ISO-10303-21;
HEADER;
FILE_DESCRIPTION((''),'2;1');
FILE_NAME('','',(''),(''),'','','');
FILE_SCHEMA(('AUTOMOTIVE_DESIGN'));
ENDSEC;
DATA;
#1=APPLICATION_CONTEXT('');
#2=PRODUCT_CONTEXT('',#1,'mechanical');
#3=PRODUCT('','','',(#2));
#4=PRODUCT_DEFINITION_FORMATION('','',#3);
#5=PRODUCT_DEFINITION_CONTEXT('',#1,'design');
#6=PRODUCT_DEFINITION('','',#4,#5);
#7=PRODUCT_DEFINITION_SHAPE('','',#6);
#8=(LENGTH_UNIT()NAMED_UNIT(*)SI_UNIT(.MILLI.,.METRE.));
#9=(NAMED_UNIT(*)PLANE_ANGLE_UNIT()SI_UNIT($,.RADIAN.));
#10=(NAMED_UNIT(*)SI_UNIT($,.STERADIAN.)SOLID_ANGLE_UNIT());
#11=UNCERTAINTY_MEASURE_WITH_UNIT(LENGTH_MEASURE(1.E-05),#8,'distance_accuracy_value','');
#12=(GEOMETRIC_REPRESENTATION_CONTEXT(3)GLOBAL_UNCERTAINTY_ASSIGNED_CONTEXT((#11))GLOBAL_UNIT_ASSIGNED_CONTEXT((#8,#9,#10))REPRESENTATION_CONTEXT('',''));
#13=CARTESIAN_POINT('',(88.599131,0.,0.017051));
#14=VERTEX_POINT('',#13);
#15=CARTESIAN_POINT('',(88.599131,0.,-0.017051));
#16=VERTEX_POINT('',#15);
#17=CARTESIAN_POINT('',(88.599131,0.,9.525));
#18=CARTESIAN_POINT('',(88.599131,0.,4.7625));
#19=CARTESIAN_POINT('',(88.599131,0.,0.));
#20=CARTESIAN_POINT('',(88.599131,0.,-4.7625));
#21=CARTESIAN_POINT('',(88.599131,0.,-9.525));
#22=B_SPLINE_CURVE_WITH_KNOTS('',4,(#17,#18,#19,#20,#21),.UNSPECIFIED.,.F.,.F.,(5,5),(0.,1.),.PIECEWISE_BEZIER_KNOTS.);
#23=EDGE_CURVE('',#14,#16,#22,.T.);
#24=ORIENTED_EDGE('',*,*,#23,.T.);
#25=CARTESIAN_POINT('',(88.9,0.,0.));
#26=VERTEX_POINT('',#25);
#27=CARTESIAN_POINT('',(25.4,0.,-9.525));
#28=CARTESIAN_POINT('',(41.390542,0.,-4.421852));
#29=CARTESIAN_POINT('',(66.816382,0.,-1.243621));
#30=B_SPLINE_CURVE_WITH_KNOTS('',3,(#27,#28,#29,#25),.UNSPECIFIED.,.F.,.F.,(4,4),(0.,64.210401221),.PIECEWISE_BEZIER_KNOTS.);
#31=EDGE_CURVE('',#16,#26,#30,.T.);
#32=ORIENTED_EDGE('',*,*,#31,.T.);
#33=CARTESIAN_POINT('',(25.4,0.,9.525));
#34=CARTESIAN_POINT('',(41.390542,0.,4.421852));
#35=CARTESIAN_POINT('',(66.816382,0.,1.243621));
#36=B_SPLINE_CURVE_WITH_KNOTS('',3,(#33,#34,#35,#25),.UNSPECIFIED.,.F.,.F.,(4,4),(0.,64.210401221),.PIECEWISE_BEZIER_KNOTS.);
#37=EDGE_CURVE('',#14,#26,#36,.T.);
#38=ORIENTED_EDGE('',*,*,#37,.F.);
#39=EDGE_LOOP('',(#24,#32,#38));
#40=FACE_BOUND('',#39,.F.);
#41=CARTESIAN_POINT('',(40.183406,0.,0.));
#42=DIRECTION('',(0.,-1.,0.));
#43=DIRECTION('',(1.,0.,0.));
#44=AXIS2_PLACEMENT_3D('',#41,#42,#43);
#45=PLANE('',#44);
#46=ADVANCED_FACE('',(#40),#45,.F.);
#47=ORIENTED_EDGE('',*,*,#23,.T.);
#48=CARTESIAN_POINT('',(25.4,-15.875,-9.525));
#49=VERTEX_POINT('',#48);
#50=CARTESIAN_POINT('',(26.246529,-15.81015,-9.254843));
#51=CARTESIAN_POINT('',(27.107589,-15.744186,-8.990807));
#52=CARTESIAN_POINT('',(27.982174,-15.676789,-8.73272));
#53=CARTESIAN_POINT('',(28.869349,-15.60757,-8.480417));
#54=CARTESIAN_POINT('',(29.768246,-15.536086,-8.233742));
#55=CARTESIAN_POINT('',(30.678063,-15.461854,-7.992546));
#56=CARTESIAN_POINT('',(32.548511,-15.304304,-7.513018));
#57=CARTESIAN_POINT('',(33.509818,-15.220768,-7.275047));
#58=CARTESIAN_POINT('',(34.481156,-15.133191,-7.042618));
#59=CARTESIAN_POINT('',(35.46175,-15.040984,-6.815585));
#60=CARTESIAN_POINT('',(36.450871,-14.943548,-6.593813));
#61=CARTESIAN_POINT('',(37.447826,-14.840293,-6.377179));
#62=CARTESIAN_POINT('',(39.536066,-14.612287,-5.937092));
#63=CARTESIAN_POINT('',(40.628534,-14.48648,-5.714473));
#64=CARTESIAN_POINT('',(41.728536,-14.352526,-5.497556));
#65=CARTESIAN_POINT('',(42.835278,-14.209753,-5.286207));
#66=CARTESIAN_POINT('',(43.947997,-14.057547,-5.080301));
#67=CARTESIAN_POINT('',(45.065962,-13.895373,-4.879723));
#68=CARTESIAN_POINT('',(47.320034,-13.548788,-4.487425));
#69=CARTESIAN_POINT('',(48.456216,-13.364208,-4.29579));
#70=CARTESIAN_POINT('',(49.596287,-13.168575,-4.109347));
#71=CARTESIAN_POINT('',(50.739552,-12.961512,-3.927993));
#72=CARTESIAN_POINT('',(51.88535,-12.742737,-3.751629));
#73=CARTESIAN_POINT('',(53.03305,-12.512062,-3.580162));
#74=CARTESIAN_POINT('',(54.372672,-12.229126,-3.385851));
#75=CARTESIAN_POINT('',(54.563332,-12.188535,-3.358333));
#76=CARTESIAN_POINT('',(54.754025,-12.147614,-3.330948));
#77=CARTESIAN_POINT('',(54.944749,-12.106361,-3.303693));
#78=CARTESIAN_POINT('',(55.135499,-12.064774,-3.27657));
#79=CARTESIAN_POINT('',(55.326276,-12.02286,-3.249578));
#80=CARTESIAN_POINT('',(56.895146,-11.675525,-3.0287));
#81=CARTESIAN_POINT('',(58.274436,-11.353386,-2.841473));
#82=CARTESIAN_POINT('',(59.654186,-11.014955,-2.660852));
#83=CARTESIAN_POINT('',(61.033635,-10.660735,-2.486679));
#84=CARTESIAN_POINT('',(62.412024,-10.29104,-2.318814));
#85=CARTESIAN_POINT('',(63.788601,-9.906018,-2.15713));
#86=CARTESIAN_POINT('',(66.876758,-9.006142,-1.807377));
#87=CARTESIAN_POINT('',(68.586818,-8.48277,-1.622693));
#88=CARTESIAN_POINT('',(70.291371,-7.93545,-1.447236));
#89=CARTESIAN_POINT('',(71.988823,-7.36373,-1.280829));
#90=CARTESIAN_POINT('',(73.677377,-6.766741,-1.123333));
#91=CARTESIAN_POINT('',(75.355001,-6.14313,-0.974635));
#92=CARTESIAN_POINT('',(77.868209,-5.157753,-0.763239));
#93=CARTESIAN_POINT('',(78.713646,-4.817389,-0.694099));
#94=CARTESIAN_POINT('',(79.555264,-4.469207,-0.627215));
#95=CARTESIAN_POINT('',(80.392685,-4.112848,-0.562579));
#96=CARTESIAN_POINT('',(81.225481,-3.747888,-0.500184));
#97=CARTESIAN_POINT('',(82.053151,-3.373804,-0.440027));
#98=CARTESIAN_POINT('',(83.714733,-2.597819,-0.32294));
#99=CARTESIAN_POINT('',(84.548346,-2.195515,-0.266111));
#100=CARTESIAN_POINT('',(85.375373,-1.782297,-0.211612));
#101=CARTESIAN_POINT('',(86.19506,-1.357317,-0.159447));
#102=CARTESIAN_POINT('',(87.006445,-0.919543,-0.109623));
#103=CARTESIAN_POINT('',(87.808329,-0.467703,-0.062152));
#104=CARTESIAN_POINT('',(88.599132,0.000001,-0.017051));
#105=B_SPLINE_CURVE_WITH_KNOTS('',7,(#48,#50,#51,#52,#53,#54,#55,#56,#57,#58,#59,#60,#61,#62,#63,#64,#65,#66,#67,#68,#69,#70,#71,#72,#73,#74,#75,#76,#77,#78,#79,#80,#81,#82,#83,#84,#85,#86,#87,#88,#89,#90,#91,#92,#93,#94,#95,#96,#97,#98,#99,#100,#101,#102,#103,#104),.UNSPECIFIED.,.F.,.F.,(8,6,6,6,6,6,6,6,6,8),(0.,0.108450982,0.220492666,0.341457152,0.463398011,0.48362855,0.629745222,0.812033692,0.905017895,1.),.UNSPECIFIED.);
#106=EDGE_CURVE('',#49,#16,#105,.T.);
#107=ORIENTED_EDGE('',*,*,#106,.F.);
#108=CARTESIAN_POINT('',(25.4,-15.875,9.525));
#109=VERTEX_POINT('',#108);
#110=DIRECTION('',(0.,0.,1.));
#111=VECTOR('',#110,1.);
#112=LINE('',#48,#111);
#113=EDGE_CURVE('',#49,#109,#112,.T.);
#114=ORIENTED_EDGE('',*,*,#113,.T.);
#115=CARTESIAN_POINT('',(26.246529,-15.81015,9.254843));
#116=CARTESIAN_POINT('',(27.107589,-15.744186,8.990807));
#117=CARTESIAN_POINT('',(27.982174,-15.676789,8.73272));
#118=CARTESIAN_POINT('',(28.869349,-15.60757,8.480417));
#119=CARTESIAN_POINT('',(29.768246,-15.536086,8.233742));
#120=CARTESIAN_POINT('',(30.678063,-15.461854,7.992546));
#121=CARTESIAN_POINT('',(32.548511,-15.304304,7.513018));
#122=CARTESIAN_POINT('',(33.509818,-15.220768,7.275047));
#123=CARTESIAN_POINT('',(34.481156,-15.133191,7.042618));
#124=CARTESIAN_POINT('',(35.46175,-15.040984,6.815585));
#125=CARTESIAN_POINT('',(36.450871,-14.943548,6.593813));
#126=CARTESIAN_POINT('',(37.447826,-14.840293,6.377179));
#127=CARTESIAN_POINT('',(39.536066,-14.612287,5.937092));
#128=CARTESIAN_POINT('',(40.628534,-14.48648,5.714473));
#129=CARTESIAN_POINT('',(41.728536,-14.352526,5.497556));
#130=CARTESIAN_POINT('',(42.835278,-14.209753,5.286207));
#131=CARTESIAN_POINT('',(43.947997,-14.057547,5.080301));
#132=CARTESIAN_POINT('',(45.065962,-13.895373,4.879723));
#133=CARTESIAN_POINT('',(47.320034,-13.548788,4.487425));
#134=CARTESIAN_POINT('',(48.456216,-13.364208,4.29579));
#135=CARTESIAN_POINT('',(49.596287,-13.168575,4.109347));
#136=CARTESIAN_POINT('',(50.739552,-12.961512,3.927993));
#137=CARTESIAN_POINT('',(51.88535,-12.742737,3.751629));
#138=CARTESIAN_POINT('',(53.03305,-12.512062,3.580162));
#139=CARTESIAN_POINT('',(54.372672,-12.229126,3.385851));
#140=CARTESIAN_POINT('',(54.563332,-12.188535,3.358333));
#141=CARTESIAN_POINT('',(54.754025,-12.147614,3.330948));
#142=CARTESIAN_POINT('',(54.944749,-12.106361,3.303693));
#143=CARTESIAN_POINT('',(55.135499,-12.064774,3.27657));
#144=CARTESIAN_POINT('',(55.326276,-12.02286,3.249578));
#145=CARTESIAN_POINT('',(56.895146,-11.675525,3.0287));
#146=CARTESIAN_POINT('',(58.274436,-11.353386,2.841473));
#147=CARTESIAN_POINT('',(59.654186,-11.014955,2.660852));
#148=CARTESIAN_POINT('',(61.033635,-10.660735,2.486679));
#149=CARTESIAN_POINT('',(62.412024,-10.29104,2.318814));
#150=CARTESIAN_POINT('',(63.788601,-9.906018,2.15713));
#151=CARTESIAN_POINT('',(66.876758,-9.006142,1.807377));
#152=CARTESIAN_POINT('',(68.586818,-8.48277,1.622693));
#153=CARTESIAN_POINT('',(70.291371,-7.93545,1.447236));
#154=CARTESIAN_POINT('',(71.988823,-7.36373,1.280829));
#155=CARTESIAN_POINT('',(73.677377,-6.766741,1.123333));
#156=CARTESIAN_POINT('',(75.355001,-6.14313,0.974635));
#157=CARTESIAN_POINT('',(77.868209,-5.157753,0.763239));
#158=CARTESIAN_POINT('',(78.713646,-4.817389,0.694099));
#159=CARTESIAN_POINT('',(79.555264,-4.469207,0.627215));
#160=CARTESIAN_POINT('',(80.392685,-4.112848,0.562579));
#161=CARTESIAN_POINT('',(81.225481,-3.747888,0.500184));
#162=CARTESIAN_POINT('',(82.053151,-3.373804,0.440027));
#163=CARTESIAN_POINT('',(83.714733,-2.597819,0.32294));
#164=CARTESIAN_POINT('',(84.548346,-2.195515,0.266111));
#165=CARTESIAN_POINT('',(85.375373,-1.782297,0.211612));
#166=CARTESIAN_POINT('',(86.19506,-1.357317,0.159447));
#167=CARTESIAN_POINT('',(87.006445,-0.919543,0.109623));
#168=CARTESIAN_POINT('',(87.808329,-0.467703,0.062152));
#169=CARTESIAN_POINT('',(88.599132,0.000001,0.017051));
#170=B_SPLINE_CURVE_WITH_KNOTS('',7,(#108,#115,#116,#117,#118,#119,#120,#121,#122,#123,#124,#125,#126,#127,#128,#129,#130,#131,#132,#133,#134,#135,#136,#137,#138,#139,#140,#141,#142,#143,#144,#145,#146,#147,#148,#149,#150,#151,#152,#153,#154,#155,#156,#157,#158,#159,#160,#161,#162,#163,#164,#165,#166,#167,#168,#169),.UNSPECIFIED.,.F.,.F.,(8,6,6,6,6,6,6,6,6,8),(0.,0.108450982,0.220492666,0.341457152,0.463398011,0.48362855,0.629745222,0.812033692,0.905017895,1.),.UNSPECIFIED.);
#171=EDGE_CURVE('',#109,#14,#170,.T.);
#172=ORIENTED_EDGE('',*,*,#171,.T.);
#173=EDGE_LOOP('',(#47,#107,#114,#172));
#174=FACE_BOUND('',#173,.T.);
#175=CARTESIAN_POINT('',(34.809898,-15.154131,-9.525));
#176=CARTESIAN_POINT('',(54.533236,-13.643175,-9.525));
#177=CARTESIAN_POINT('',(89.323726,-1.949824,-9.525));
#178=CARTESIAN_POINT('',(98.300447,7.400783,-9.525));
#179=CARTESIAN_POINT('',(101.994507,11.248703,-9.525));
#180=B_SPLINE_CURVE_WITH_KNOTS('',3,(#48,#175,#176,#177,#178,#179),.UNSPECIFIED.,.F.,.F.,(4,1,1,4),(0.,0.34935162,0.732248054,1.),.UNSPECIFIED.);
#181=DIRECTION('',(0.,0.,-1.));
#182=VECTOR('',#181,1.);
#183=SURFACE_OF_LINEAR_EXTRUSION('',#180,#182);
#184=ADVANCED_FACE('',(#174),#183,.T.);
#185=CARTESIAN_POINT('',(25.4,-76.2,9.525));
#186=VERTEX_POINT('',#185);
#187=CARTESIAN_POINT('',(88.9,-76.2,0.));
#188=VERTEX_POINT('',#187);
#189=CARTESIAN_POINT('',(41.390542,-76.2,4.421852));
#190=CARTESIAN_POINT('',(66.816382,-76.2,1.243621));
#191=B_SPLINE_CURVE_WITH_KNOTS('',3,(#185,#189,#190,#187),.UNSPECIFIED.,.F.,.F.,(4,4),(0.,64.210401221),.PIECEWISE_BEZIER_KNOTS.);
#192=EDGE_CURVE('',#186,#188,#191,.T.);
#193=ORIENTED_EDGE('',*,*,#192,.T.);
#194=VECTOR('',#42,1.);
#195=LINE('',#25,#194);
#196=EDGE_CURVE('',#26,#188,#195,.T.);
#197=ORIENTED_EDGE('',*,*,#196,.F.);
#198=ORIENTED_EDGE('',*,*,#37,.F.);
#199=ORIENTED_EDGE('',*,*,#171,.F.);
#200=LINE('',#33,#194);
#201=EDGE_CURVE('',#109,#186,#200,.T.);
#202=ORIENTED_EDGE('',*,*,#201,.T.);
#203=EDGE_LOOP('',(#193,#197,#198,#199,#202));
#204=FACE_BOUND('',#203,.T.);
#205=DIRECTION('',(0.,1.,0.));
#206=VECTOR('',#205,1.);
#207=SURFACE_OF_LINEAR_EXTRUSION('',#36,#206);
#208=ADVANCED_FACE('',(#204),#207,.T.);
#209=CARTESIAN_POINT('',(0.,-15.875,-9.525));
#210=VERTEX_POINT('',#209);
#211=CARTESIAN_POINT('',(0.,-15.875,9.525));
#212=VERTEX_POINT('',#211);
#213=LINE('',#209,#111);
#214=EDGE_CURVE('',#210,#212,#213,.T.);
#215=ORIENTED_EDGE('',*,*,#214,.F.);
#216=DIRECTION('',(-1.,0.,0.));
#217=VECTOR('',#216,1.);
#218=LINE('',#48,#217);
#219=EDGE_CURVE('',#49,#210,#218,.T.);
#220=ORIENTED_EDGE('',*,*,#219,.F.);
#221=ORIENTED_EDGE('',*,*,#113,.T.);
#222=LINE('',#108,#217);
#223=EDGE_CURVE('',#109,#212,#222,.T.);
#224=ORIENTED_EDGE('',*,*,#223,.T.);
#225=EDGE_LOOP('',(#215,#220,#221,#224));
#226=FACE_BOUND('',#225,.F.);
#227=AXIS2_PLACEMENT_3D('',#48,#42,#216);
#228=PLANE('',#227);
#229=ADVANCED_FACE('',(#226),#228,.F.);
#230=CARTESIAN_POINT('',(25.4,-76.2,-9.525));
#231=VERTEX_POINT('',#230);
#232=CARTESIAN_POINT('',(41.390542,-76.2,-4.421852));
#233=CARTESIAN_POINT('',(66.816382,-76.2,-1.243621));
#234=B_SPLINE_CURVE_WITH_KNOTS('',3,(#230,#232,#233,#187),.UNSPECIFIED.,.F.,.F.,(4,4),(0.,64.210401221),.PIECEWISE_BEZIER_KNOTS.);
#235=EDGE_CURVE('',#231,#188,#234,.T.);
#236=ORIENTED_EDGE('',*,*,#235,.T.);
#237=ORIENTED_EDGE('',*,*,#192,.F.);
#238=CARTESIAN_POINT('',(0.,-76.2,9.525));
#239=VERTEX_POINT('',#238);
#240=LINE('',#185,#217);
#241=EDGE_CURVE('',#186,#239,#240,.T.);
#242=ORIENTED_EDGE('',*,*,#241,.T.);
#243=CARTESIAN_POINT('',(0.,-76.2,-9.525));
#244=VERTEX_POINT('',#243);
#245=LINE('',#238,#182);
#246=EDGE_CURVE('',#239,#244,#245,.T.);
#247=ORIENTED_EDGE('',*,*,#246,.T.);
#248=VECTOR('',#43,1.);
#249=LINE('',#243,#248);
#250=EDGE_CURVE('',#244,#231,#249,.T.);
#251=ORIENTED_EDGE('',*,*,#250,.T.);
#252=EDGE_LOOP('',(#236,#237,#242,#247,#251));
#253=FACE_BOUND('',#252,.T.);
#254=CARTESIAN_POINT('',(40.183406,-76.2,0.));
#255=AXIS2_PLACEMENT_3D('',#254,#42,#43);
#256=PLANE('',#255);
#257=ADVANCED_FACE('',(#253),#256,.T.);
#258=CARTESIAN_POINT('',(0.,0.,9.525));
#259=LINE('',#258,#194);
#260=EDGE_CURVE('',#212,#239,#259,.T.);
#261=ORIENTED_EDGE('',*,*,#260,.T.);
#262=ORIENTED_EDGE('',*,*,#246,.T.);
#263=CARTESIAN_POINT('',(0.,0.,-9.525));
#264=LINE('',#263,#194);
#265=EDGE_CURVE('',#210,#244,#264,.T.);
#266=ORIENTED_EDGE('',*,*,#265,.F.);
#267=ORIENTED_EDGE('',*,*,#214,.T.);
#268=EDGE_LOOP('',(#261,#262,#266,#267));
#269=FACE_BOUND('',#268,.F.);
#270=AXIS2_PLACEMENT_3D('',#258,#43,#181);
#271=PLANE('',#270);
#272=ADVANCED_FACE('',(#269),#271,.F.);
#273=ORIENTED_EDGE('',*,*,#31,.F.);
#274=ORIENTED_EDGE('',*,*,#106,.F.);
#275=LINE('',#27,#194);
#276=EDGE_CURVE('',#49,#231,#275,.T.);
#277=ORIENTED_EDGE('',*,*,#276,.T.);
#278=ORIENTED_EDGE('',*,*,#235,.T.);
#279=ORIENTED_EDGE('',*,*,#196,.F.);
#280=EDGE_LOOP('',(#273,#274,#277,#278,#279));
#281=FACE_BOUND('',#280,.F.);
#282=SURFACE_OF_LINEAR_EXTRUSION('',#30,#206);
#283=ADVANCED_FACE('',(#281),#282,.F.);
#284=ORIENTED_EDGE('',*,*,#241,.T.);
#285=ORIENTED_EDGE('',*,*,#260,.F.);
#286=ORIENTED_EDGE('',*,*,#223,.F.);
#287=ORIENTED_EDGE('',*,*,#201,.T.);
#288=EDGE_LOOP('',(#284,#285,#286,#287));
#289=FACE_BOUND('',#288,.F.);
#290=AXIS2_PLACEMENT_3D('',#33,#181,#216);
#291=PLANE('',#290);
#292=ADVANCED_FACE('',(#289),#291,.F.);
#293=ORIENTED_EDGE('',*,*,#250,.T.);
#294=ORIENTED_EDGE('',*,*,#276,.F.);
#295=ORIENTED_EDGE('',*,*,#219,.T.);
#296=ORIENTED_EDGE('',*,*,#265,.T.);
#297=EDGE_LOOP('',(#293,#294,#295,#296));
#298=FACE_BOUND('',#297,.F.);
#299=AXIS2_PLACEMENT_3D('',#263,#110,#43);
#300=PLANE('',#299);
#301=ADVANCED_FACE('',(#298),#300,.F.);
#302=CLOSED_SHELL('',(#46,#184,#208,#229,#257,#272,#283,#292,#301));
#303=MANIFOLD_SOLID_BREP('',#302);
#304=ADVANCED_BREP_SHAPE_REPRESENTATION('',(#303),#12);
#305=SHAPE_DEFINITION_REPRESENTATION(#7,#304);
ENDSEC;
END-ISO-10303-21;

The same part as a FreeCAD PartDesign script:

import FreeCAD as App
import Part
import Sketcher
Q = App.Units.Quantity

doc = App.newDocument("Part")
body = doc.addObject("PartDesign::Body", "Body")

# Sketch on XZ plane
sketch1 = doc.addObject("Sketcher::SketchObject", "Sketch")
body.addObject(sketch1)
sketch1.AttachmentSupport = (doc.XZ_Plane, [""])
sketch1.MapMode = "FlatFace"
sketch1.addGeometry([
    Part.LineSegment(App.Vector(0, 9.525, 0), App.Vector(0, -9.525, 0)),  # 0
    Part.LineSegment(App.Vector(0, -9.525, 0), App.Vector(25.4, -9.525, 0)),  # 1
    Part.BSplineCurve([App.Vector(25.4, -9.525, 0), App.Vector(41.390542, -4.421852, 0), App.Vector(66.816382, -1.243621, 0), App.Vector(88.9, 0, 0)], [4, 4], [0, 64.210401221], False, 3, [1, 1, 1, 1], False),  # 2
    Part.BSplineCurve([App.Vector(25.4, 9.525, 0), App.Vector(41.390542, 4.421852, 0), App.Vector(66.816382, 1.243621, 0), App.Vector(88.9, 0, 0)], [4, 4], [0, 64.210401221], False, 3, [1, 1, 1, 1], False),  # 3
    Part.LineSegment(App.Vector(25.4, 9.525, 0), App.Vector(0, 9.525, 0)),  # 4
], False)
sketch1.addConstraint([
    Sketcher.Constraint("Block", 2),
    Sketcher.Constraint("Block", 3),
    Sketcher.Constraint("Coincident", 0, 2, 1, 1),
    Sketcher.Constraint("Coincident", 1, 2, 2, 1),
    Sketcher.Constraint("Coincident", 3, 1, 4, 1),
    Sketcher.Constraint("Coincident", 4, 2, 0, 1),
    Sketcher.Constraint("Vertical", 0),
    Sketcher.Constraint("Horizontal", 1),
    Sketcher.Constraint("Horizontal", 4),
    Sketcher.Constraint("PointOnObject", 0, 2, -2),
])
pad1 = doc.addObject("PartDesign::Pad", "Pad")
body.addObject(pad1)
pad1.Profile = sketch1
pad1.Length = Q("3 in")

# Sketch on XY plane
sketch2 = doc.addObject("Sketcher::SketchObject", "Sketch001")
body.addObject(sketch2)
sketch2.AttachmentSupport = (doc.XY_Plane, [""])
sketch2.MapMode = "FlatFace"
sketch2.AttachmentOffset = App.Placement(App.Vector(0, 0, -0.375 * 25.4), App.Rotation())
sketch2.addGeometry([
    Part.LineSegment(App.Vector(25.4, -15.875, 0), App.Vector(0, -15.875, 0)),
    Part.LineSegment(App.Vector(0, -15.875, 0), App.Vector(0, 11.248703, 0)),
    Part.LineSegment(App.Vector(0, 11.248703, 0), App.Vector(101.994507, 11.248703, 0)),
    Part.BSplineCurve([App.Vector(25.4, -15.875, 0), App.Vector(34.809898, -15.154131, 0), App.Vector(54.533236, -13.643175, 0), App.Vector(89.323726, -1.949824, 0), App.Vector(98.300447, 7.400783, 0), App.Vector(101.994507, 11.248703, 0)], [4, 1, 1, 4], [0, 0.34935162, 0.732248054, 1], False, 3, [1, 1, 1, 1, 1, 1], False),
], False)
sketch2.addConstraint([
    Sketcher.Constraint("Block", 3),
    Sketcher.Constraint("Coincident", 0, 2, 1, 1),
    Sketcher.Constraint("Coincident", 1, 2, 2, 1),
    Sketcher.Constraint("Coincident", 2, 2, 3, 2),
    Sketcher.Constraint("Coincident", 3, 1, 0, 1),
    Sketcher.Constraint("Horizontal", 0),
    Sketcher.Constraint("Vertical", 1),
    Sketcher.Constraint("Horizontal", 2),
    Sketcher.Constraint("PointOnObject", 0, 2, -2),
])
pocket1 = doc.addObject("PartDesign::Pocket", "Pocket")
body.addObject(pocket1)
pocket1.Profile = sketch2
pocket1.Type = "ThroughAll"
pocket1.Reversed = True

doc.recompute()
